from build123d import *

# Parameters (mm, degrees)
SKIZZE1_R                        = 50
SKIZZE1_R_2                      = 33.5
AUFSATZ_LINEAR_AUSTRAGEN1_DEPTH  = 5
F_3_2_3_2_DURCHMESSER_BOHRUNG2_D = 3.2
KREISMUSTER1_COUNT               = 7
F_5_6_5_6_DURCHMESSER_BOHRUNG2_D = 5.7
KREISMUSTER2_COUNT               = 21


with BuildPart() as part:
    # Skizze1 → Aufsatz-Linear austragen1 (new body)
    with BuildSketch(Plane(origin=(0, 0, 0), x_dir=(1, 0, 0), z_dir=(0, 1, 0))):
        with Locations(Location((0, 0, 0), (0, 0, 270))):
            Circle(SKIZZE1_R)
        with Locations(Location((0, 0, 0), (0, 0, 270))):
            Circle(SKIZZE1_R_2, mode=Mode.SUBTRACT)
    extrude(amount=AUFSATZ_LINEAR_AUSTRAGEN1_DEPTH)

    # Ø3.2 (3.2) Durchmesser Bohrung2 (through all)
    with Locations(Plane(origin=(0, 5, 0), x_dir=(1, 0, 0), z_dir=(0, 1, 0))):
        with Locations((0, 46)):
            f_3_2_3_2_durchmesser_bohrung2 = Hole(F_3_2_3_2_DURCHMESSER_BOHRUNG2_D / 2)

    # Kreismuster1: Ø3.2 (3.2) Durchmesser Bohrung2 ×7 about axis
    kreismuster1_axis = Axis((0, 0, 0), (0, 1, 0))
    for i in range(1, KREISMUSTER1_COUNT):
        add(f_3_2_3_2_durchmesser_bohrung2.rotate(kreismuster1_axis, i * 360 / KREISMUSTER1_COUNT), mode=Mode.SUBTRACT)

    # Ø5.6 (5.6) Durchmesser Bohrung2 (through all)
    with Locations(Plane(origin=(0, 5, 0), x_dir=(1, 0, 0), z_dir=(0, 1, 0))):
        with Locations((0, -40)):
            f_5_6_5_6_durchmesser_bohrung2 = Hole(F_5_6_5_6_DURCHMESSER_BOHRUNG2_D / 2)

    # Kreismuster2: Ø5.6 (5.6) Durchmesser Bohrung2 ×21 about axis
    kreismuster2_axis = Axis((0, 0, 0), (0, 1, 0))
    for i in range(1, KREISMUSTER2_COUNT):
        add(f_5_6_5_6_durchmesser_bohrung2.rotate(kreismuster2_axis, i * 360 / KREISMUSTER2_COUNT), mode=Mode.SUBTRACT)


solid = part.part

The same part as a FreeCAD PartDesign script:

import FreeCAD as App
import Part
import Sketcher

V = App.Vector
Q = App.Units.Quantity

doc = App.newDocument("Part")
body = doc.addObject("PartDesign::Body", "Body")

sketch1 = body.newObject("Sketcher::SketchObject", "Sketch")
sketch1.AttachmentSupport = (doc.getObject("XZ_Plane"), [""])
sketch1.MapMode = "FlatFace"
sketch1.addGeometry(Part.Circle(V(0, 0, 0), V(0, 0, 1), 50), False)
sketch1.addGeometry(Part.Circle(V(0, 0, 0), V(0, 0, 1), 34), False)
sketch1.addConstraint(Sketcher.Constraint("Coincident", 0, 3, -1, 1))
sketch1.addConstraint(Sketcher.Constraint("Coincident", 1, 3, -1, 1))
sketch1.addConstraint(Sketcher.Constraint("Diameter", 0, Q("100 mm")))
sketch1.addConstraint(Sketcher.Constraint("Diameter", 1, Q("67 mm")))
pad1 = body.newObject("PartDesign::Pad", "Pad")
pad1.Profile = sketch1
pad1.Length = 5
pad1.Reversed = True

sketch2 = body.newObject("Sketcher::SketchObject", "Sketch001")
sketch2.AttachmentSupport = (doc.getObject("XZ_Plane"), [""])
sketch2.MapMode = "FlatFace"
sketch2.AttachmentOffset = App.Placement(V(0, 0, -5), App.Rotation())
sketch2.addGeometry(Part.Circle(V(0, -46, 0), V(0, 0, 1), 1.6), False)
sketch2.addConstraint(Sketcher.Constraint("PointOnObject", 0, 3, -2))
sketch2.addConstraint(Sketcher.Constraint("Diameter", 0, Q("3.2 mm")))
sketch2.addConstraint(Sketcher.Constraint("DistanceY", 0, 3, -1, 1, Q("46 mm")))
doc.recompute()
hole = body.newObject("PartDesign::Hole", "Hole")
hole.Profile = sketch2
hole.ThreadType = "None"
hole.Diameter = 3.2
hole.DepthType = "ThroughAll"
hole.Reversed = True
doc.recompute()

polarpattern = body.newObject("PartDesign::PolarPattern", "PolarPattern")
polarpattern.Originals = [hole]
polarpattern.Axis = (doc.getObject("Y_Axis"), [""])
polarpattern.Angle = 360
polarpattern.Occurrences = 7
body.Tip = polarpattern

sketch3 = body.newObject("Sketcher::SketchObject", "Sketch002")
sketch3.AttachmentSupport = (doc.getObject("XZ_Plane"), [""])
sketch3.MapMode = "FlatFace"
sketch3.AttachmentOffset = App.Placement(V(0, 0, -5), App.Rotation())
sketch3.addGeometry(Part.Circle(V(0, 40, 0), V(0, 0, 1), 2.9), False)
sketch3.addConstraint(Sketcher.Constraint("PointOnObject", 0, 3, -2))
sketch3.addConstraint(Sketcher.Constraint("Diameter", 0, Q("5.7 mm")))
sketch3.addConstraint(Sketcher.Constraint("DistanceY", -1, 1, 0, 3, Q("40 mm")))
doc.recompute()
hole2 = body.newObject("PartDesign::Hole", "Hole001")
hole2.Profile = sketch3
hole2.ThreadType = "None"
hole2.Diameter = 5.7
hole2.DepthType = "ThroughAll"
hole2.Reversed = True
doc.recompute()

polarpattern2 = body.newObject("PartDesign::PolarPattern", "PolarPattern001")
polarpattern2.Originals = [hole2]
polarpattern2.Axis = (doc.getObject("Y_Axis"), [""])
polarpattern2.Angle = 360
polarpattern2.Occurrences = 21
body.Tip = polarpattern2

doc.recompute()
